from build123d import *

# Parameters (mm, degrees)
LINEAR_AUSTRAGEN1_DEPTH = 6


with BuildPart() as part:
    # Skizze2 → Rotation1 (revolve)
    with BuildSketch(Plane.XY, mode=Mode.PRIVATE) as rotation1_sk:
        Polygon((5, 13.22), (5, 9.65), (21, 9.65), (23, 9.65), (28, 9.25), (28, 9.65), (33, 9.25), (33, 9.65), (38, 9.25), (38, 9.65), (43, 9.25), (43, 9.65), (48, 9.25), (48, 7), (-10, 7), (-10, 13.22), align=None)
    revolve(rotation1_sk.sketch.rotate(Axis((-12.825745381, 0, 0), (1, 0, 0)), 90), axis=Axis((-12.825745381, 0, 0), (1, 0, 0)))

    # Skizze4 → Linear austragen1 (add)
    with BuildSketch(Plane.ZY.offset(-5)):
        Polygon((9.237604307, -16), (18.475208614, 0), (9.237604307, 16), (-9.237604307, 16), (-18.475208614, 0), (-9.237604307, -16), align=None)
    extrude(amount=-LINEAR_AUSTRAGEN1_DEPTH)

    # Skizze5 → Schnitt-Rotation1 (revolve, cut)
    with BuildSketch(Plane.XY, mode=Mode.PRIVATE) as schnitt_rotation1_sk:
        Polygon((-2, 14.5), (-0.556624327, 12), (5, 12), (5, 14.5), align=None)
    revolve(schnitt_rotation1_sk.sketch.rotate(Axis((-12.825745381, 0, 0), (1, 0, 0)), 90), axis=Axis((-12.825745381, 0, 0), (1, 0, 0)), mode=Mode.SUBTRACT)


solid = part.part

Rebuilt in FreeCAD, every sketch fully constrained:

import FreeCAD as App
import Part
import Sketcher
from FreeCAD import Vector
Q = App.Units.Quantity

doc = App.newDocument("Part")
body = doc.addObject("PartDesign::Body", "Body")

# Sketch on XY plane
sketch1 = doc.addObject("Sketcher::SketchObject", "Sketch")
body.addObject(sketch1)
sketch1.AttachmentSupport = (doc.XY_Plane, [""])
sketch1.MapMode = "FlatFace"
sketch1.addGeometry([
    Part.LineSegment(Vector(5, 9.65, 0), Vector(5, 13.22, 0)),  # 0
    Part.LineSegment(Vector(5, 13.22, 0), Vector(-10, 13.22, 0)),  # 1
    Part.LineSegment(Vector(-10, 13.22, 0), Vector(-10, 7, 0)),  # 2
    Part.LineSegment(Vector(-10, 7, 0), Vector(48, 7, 0)),  # 3
    Part.LineSegment(Vector(48, 7, 0), Vector(48, 9.25, 0)),  # 4
    Part.LineSegment(Vector(48, 9.25, 0), Vector(43, 9.65, 0)),  # 5
    Part.LineSegment(Vector(43, 9.65, 0), Vector(43, 9.25, 0)),  # 6
    Part.LineSegment(Vector(43, 9.25, 0), Vector(38, 9.65, 0)),  # 7
    Part.LineSegment(Vector(38, 9.65, 0), Vector(38, 9.25, 0)),  # 8
    Part.LineSegment(Vector(38, 9.25, 0), Vector(33, 9.65, 0)),  # 9
    Part.LineSegment(Vector(33, 9.65, 0), Vector(33, 9.25, 0)),  # 10
    Part.LineSegment(Vector(33, 9.25, 0), Vector(28, 9.65, 0)),  # 11
    Part.LineSegment(Vector(28, 9.65, 0), Vector(28, 9.25, 0)),  # 12
    Part.LineSegment(Vector(28, 9.25, 0), Vector(23, 9.65, 0)),  # 13
    Part.LineSegment(Vector(23, 9.65, 0), Vector(5, 9.65, 0)),  # 14
], False)
sketch1.addConstraint([
    Sketcher.Constraint("Coincident", 0, 2, 1, 1),
    Sketcher.Constraint("Coincident", 1, 2, 2, 1),
    Sketcher.Constraint("Coincident", 2, 2, 3, 1),
    Sketcher.Constraint("Coincident", 3, 2, 4, 1),
    Sketcher.Constraint("Coincident", 4, 2, 5, 1),
    Sketcher.Constraint("Coincident", 5, 2, 6, 1),
    Sketcher.Constraint("Coincident", 6, 2, 7, 1),
    Sketcher.Constraint("Coincident", 7, 2, 8, 1),
    Sketcher.Constraint("Coincident", 8, 2, 9, 1),
    Sketcher.Constraint("Coincident", 9, 2, 10, 1),
    Sketcher.Constraint("Coincident", 10, 2, 11, 1),
    Sketcher.Constraint("Coincident", 11, 2, 12, 1),
    Sketcher.Constraint("Coincident", 12, 2, 13, 1),
    Sketcher.Constraint("Coincident", 13, 2, 14, 1),
    Sketcher.Constraint("Coincident", 14, 2, 0, 1),
    Sketcher.Constraint("Vertical", 0),
    Sketcher.Constraint("Horizontal", 1),
    Sketcher.Constraint("Vertical", 2),
    Sketcher.Constraint("Horizontal", 3),
    Sketcher.Constraint("Vertical", 4),
    Sketcher.Constraint("Vertical", 6),
    Sketcher.Constraint("Vertical", 8),
    Sketcher.Constraint("Vertical", 10),
    Sketcher.Constraint("Vertical", 12),
    Sketcher.Constraint("Horizontal", 14),
    Sketcher.Constraint("Parallel", 5, 7),
    Sketcher.Constraint("Parallel", 7, 9),
    Sketcher.Constraint("Parallel", 9, 11),
    Sketcher.Constraint("Parallel", 11, 13),
    Sketcher.Constraint("Horizontal", 4, 2, 6, 2),
    Sketcher.Constraint("Horizontal", 5, 2, 7, 2),
    Sketcher.Constraint("Horizontal", 6, 2, 8, 2),
    Sketcher.Constraint("Horizontal", 7, 2, 9, 2),
    Sketcher.Constraint("Horizontal", 8, 2, 10, 2),
    Sketcher.Constraint("Horizontal", 9, 2, 11, 2),
    Sketcher.Constraint("Horizontal", 10, 2, 12, 2),
    Sketcher.Constraint("Horizontal", 11, 2, 13, 2),
    Sketcher.Constraint("DistanceX", 1, 2, 1, 1, Q("15 mm")),
    Sketcher.Constraint("DistanceX", 3, 1, 3, 2, Q("58 mm")),
    Sketcher.Constraint("DistanceX", 14, 2, 14, 1, Q("18 mm")),
    Sketcher.Constraint("DistanceY", 6, 2, 6, 1, Q("0.4 mm")),
    Sketcher.Constraint("DistanceX", -1, 1, 0, 2, Q("5 mm")),
    Sketcher.Constraint("DistanceY", -1, 1, 2, 2, Q("7 mm")),
    Sketcher.Constraint("DistanceY", 0, 1, 0, 2, Q("3.57 mm")),
    Sketcher.Constraint("DistanceY", 2, 2, 2, 1, Q("6.22 mm")),
])
revolution = doc.addObject("PartDesign::Revolution", "Revolution")
body.addObject(revolution)
revolution.Profile = sketch1
revolution.ReferenceAxis = (sketch1, ["H_Axis"])
revolution.Angle = 360

# Sketch on YZ plane
sketch2 = doc.addObject("Sketcher::SketchObject", "Sketch001")
body.addObject(sketch2)
sketch2.AttachmentSupport = (doc.YZ_Plane, [""])
sketch2.MapMode = "FlatFace"
sketch2.AttachmentOffset = App.Placement(Vector(0, 0, 5), App.Rotation())
sketch2.addGeometry([
    Part.LineSegment(Vector(-16, 9.237604, 0), Vector(0, 18.475209, 0)),  # 0
    Part.LineSegment(Vector(0, 18.475209, 0), Vector(16, 9.237604, 0)),  # 1
    Part.LineSegment(Vector(16, 9.237604, 0), Vector(16, -9.237604, 0)),  # 2
    Part.LineSegment(Vector(16, -9.237604, 0), Vector(0, -18.475209, 0)),  # 3
    Part.LineSegment(Vector(0, -18.475209, 0), Vector(-16, -9.237604, 0)),  # 4
    Part.LineSegment(Vector(-16, -9.237604, 0), Vector(-16, 9.237604, 0)),  # 5
], False)
sketch2.addConstraint([
    Sketcher.Constraint("Coincident", 0, 2, 1, 1),
    Sketcher.Constraint("Coincident", 1, 2, 2, 1),
    Sketcher.Constraint("Coincident", 2, 2, 3, 1),
    Sketcher.Constraint("Coincident", 3, 2, 4, 1),
    Sketcher.Constraint("Coincident", 4, 2, 5, 1),
    Sketcher.Constraint("Coincident", 5, 2, 0, 1),
    Sketcher.Constraint("Vertical", 2),
    Sketcher.Constraint("Vertical", 5),
    Sketcher.Constraint("Symmetric", 0, 2, 3, 2, -1, 1),
    Sketcher.Constraint("Symmetric", 1, 2, 4, 2, -1, 1),
    Sketcher.Constraint("PointOnObject", 0, 2, -2),
    Sketcher.Constraint("Parallel", 0, 3),
    Sketcher.Constraint("Horizontal", 2, 2, 4, 2),
    Sketcher.Constraint("Angle", 0, Q("30 deg")),
    Sketcher.Constraint("DistanceX", -1, 1, 1, 2, Q("16 mm")),
    Sketcher.Constraint("DistanceY", 2, 2, 2, 1, Q("18.475209 mm")),
])
pad1 = doc.addObject("PartDesign::Pad", "Pad")
body.addObject(pad1)
pad1.Profile = sketch2
pad1.Length = 6

# Sketch on XY plane
sketch3 = doc.addObject("Sketcher::SketchObject", "Sketch002")
body.addObject(sketch3)
sketch3.AttachmentSupport = (doc.XY_Plane, [""])
sketch3.MapMode = "FlatFace"
sketch3.addGeometry([
    Part.LineSegment(Vector(-2, 14.5, 0), Vector(-0.556624, 12, 0)),
    Part.LineSegment(Vector(-0.556624, 12, 0), Vector(5, 12, 0)),
    Part.LineSegment(Vector(5, 12, 0), Vector(5, 14.5, 0)),
    Part.LineSegment(Vector(5, 14.5, 0), Vector(-2, 14.5, 0)),
], False)
sketch3.addConstraint([
    Sketcher.Constraint("Coincident", 0, 2, 1, 1),
    Sketcher.Constraint("Coincident", 1, 2, 2, 1),
    Sketcher.Constraint("Coincident", 2, 2, 3, 1),
    Sketcher.Constraint("Coincident", 3, 2, 0, 1),
    Sketcher.Constraint("Horizontal", 1),
    Sketcher.Constraint("Vertical", 2),
    Sketcher.Constraint("Horizontal", 3),
    Sketcher.Constraint("DistanceX", 3, 2, 3, 1, Q("7 mm")),
    Sketcher.Constraint("Angle", 0, Q("-60 deg")),
    Sketcher.Constraint("DistanceY", 2, 1, 2, 2, Q("2.5 mm")),
    Sketcher.Constraint("DistanceY", -1, 1, 0, 2, Q("12 mm")),
    Sketcher.Constraint("DistanceX", -1, 1, 1, 2, Q("5 mm")),
])
groove = doc.addObject("PartDesign::Groove", "Groove")
body.addObject(groove)
groove.Profile = sketch3
groove.ReferenceAxis = (sketch3, ["H_Axis"])
groove.Angle = 360

doc.recompute()
